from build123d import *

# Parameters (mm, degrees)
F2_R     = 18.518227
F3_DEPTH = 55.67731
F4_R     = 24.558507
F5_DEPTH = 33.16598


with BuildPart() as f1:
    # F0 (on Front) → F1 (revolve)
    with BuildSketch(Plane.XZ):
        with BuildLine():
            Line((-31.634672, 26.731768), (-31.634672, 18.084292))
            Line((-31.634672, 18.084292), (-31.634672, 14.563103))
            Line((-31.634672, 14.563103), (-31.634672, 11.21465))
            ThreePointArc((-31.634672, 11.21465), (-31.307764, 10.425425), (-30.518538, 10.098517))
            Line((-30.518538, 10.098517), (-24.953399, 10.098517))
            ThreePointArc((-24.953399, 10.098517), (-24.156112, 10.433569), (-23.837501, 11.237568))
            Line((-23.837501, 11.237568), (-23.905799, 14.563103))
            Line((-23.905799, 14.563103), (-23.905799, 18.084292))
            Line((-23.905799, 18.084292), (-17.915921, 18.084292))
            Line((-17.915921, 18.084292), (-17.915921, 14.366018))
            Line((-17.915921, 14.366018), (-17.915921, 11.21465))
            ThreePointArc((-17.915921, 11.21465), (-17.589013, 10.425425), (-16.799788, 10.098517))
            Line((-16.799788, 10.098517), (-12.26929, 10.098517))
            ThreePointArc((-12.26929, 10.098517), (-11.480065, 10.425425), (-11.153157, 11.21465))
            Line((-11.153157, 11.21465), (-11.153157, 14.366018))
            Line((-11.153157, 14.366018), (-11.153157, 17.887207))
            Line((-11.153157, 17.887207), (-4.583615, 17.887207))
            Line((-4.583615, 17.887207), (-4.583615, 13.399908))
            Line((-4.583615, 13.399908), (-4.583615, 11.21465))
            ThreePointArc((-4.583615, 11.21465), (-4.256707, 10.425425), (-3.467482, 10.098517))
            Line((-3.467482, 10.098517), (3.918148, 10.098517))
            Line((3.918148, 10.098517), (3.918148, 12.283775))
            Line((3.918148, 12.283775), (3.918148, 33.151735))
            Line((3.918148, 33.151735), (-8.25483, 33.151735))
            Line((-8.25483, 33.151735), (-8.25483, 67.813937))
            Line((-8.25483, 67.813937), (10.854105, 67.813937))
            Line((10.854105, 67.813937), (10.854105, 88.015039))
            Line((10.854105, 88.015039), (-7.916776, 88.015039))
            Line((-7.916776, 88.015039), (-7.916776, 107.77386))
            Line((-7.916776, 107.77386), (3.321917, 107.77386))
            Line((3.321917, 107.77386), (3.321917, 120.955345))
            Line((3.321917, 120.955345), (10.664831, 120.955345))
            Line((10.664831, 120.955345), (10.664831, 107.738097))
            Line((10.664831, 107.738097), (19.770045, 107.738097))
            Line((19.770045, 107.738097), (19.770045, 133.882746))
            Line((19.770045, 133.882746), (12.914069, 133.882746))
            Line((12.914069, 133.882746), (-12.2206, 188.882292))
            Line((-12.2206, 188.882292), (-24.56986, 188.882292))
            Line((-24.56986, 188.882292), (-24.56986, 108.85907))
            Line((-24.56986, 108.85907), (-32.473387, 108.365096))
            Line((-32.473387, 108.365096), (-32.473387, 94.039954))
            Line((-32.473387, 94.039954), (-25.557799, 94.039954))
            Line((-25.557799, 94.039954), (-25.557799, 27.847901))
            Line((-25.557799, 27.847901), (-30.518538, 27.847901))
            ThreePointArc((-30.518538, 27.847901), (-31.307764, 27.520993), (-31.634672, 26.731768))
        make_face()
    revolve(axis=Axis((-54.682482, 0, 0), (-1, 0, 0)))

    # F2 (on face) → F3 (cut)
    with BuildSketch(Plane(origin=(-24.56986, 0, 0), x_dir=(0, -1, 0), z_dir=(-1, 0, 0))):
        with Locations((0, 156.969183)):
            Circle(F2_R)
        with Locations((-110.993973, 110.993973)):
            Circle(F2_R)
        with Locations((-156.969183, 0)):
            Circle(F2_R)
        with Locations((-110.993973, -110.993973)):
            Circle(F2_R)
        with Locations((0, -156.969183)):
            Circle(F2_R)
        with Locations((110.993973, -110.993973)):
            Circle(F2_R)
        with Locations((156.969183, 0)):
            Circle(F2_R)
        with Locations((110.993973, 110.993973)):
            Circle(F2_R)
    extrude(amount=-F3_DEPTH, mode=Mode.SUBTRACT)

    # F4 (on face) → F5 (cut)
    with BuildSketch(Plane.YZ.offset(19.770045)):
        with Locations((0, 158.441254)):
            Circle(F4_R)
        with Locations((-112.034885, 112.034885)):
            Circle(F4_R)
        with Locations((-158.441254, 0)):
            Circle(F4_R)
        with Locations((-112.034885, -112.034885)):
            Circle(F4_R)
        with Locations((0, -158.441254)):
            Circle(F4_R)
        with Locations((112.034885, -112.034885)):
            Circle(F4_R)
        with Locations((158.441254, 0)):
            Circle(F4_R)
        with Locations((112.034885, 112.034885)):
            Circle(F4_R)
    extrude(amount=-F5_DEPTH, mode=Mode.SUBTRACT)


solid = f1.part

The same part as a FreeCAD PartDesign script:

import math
import FreeCAD as App
import Part
import Sketcher
from FreeCAD import Vector
Q = App.Units.Quantity

doc = App.newDocument("Part")
body = doc.addObject("PartDesign::Body", "Body")

# Sketch on XZ plane
sketch1 = doc.addObject("Sketcher::SketchObject", "Sketch")
body.addObject(sketch1)
sketch1.AttachmentSupport = (doc.XZ_Plane, [""])
sketch1.MapMode = "FlatFace"
sketch1.addGeometry([
    Part.LineSegment(Vector(-31.634672, 26.731768, 0), Vector(-31.634672, 11.21465, 0)),  # 0
    Part.ArcOfCircle(Part.Circle(Vector(-30.518538, 11.214651, 0), Vector(0, 0, 1), 1.116134), math.radians(-179.999963), math.radians(-89.999986)),  # 1
    Part.LineSegment(Vector(-30.518538, 10.098517, 0), Vector(-24.953399, 10.098517, 0)),  # 2
    Part.ArcOfCircle(Part.Circle(Vector(-24.953398, 11.214649, 0), Vector(0, 0, 1), 1.116132), math.radians(-90.000055), math.radians(1.176598)),  # 3
    Part.LineSegment(Vector(-23.837501, 11.237568, 0), Vector(-23.905799, 14.563103, 0)),  # 4
    Part.LineSegment(Vector(-23.905799, 14.563103, 0), Vector(-23.905799, 18.084292, 0)),  # 5
    Part.LineSegment(Vector(-23.905799, 18.084292, 0), Vector(-17.915921, 18.084292, 0)),  # 6
    Part.LineSegment(Vector(-17.915921, 18.084292, 0), Vector(-17.915921, 11.21465, 0)),  # 7
    Part.ArcOfCircle(Part.Circle(Vector(-16.799787, 11.214651, 0), Vector(0, 0, 1), 1.116134), math.radians(-179.999963), math.radians(-90.000037)),  # 8
    Part.LineSegment(Vector(-16.799788, 10.098517, 0), Vector(-12.26929, 10.098517, 0)),  # 9
    Part.ArcOfCircle(Part.Circle(Vector(-12.269291, 11.214651, 0), Vector(0, 0, 1), 1.116134), math.radians(-89.999963), math.radians(-0.000037)),  # 10
    Part.LineSegment(Vector(-11.153157, 11.21465, 0), Vector(-11.153157, 17.887207, 0)),  # 11
    Part.LineSegment(Vector(-11.153157, 17.887207, 0), Vector(-4.583615, 17.887207, 0)),  # 12
    Part.LineSegment(Vector(-4.583615, 17.887207, 0), Vector(-4.583615, 11.21465, 0)),  # 13
    Part.ArcOfCircle(Part.Circle(Vector(-3.467481, 11.214651, 0), Vector(0, 0, 1), 1.116134), math.radians(-179.999963), math.radians(-90.000037)),  # 14
    Part.LineSegment(Vector(-3.467482, 10.098517, 0), Vector(3.918148, 10.098517, 0)),  # 15
    Part.LineSegment(Vector(3.918148, 10.098517, 0), Vector(3.918148, 33.151735, 0)),  # 16
    Part.LineSegment(Vector(3.918148, 33.151735, 0), Vector(-8.25483, 33.151735, 0)),  # 17
    Part.LineSegment(Vector(-8.25483, 33.151735, 0), Vector(-8.25483, 67.813937, 0)),  # 18
    Part.LineSegment(Vector(-8.25483, 67.813937, 0), Vector(10.854105, 67.813937, 0)),  # 19
    Part.LineSegment(Vector(10.854105, 67.813937, 0), Vector(10.854105, 88.015039, 0)),  # 20
    Part.LineSegment(Vector(10.854105, 88.015039, 0), Vector(-7.916776, 88.015039, 0)),  # 21
    Part.LineSegment(Vector(-7.916776, 88.015039, 0), Vector(-7.916776, 107.77386, 0)),  # 22
    Part.LineSegment(Vector(-7.916776, 107.77386, 0), Vector(3.321917, 107.77386, 0)),  # 23
    Part.LineSegment(Vector(3.321917, 107.77386, 0), Vector(3.321917, 120.955345, 0)),  # 24
    Part.LineSegment(Vector(3.321917, 120.955345, 0), Vector(10.664831, 120.955345, 0)),  # 25
    Part.LineSegment(Vector(10.664831, 120.955345, 0), Vector(10.664831, 107.738097, 0)),  # 26
    Part.LineSegment(Vector(10.664831, 107.738097, 0), Vector(19.770045, 107.738097, 0)),  # 27
    Part.LineSegment(Vector(19.770045, 107.738097, 0), Vector(19.770045, 133.882746, 0)),  # 28
    Part.LineSegment(Vector(19.770045, 133.882746, 0), Vector(12.914069, 133.882746, 0)),  # 29
    Part.LineSegment(Vector(12.914069, 133.882746, 0), Vector(-12.2206, 188.882292, 0)),  # 30
    Part.LineSegment(Vector(-12.2206, 188.882292, 0), Vector(-24.56986, 188.882292, 0)),  # 31
    Part.LineSegment(Vector(-24.56986, 188.882292, 0), Vector(-24.56986, 108.85907, 0)),  # 32
    Part.LineSegment(Vector(-24.56986, 108.85907, 0), Vector(-32.473387, 108.365096, 0)),  # 33
    Part.LineSegment(Vector(-32.473387, 108.365096, 0), Vector(-32.473387, 94.039954, 0)),  # 34
    Part.LineSegment(Vector(-32.473387, 94.039954, 0), Vector(-25.557799, 94.039954, 0)),  # 35
    Part.LineSegment(Vector(-25.557799, 94.039954, 0), Vector(-25.557799, 27.847901, 0)),  # 36
    Part.LineSegment(Vector(-25.557799, 27.847901, 0), Vector(-30.518538, 27.847901, 0)),  # 37
    Part.ArcOfCircle(Part.Circle(Vector(-30.518538, 26.731767, 0), Vector(0, 0, 1), 1.116134), math.radians(89.999986), math.radians(179.999963)),  # 38
], False)
sketch1.addConstraint([
    Sketcher.Constraint("Tangent", 0, 2, 1, 1),
    Sketcher.Constraint("Tangent", 1, 2, 2, 1),
    Sketcher.Constraint("Tangent", 2, 2, 3, 1),
    Sketcher.Constraint("Tangent", 3, 2, 4, 1),
    Sketcher.Constraint("Coincident", 4, 2, 5, 1),
    Sketcher.Constraint("Coincident", 5, 2, 6, 1),
    Sketcher.Constraint("Coincident", 6, 2, 7, 1),
    Sketcher.Constraint("Tangent", 7, 2, 8, 1),
    Sketcher.Constraint("Tangent", 8, 2, 9, 1),
    Sketcher.Constraint("Tangent", 9, 2, 10, 1),
    Sketcher.Constraint("Tangent", 10, 2, 11, 1),
    Sketcher.Constraint("Coincident", 11, 2, 12, 1),
    Sketcher.Constraint("Coincident", 12, 2, 13, 1),
    Sketcher.Constraint("Tangent", 13, 2, 14, 1),
    Sketcher.Constraint("Tangent", 14, 2, 15, 1),
    Sketcher.Constraint("Coincident", 15, 2, 16, 1),
    Sketcher.Constraint("Coincident", 16, 2, 17, 1),
    Sketcher.Constraint("Coincident", 17, 2, 18, 1),
    Sketcher.Constraint("Coincident", 18, 2, 19, 1),
    Sketcher.Constraint("Coincident", 19, 2, 20, 1),
    Sketcher.Constraint("Coincident", 20, 2, 21, 1),
    Sketcher.Constraint("Coincident", 21, 2, 22, 1),
    Sketcher.Constraint("Coincident", 22, 2, 23, 1),
    Sketcher.Constraint("Coincident", 23, 2, 24, 1),
    Sketcher.Constraint("Coincident", 24, 2, 25, 1),
    Sketcher.Constraint("Coincident", 25, 2, 26, 1),
    Sketcher.Constraint("Coincident", 26, 2, 27, 1),
    Sketcher.Constraint("Coincident", 27, 2, 28, 1),
    Sketcher.Constraint("Coincident", 28, 2, 29, 1),
    Sketcher.Constraint("Coincident", 29, 2, 30, 1),
    Sketcher.Constraint("Coincident", 30, 2, 31, 1),
    Sketcher.Constraint("Coincident", 31, 2, 32, 1),
    Sketcher.Constraint("Coincident", 32, 2, 33, 1),
    Sketcher.Constraint("Coincident", 33, 2, 34, 1),
    Sketcher.Constraint("Coincident", 34, 2, 35, 1),
    Sketcher.Constraint("Coincident", 35, 2, 36, 1),
    Sketcher.Constraint("Coincident", 36, 2, 37, 1),
    Sketcher.Constraint("Tangent", 37, 2, 38, 1),
    Sketcher.Constraint("Tangent", 38, 2, 0, 1),
    Sketcher.Constraint("Vertical", 0),
    Sketcher.Constraint("Horizontal", 2),
    Sketcher.Constraint("Vertical", 5),
    Sketcher.Constraint("Horizontal", 6),
    Sketcher.Constraint("Vertical", 7),
    Sketcher.Constraint("Horizontal", 9),
    Sketcher.Constraint("Vertical", 11),
    Sketcher.Constraint("Horizontal", 12),
    Sketcher.Constraint("Vertical", 13),
    Sketcher.Constraint("Horizontal", 15),
    Sketcher.Constraint("Vertical", 16),
    Sketcher.Constraint("Horizontal", 17),
    Sketcher.Constraint("Vertical", 18),
    Sketcher.Constraint("Horizontal", 19),
    Sketcher.Constraint("Vertical", 20),
    Sketcher.Constraint("Horizontal", 21),
    Sketcher.Constraint("Vertical", 22),
    Sketcher.Constraint("Horizontal", 23),
    Sketcher.Constraint("Vertical", 24),
    Sketcher.Constraint("Horizontal", 25),
    Sketcher.Constraint("Vertical", 26),
    Sketcher.Constraint("Horizontal", 27),
    Sketcher.Constraint("Vertical", 28),
    Sketcher.Constraint("Horizontal", 29),
    Sketcher.Constraint("Horizontal", 31),
    Sketcher.Constraint("Vertical", 32),
    Sketcher.Constraint("Vertical", 34),
    Sketcher.Constraint("Horizontal", 35),
    Sketcher.Constraint("Vertical", 36),
    Sketcher.Constraint("Horizontal", 37),
    Sketcher.Constraint("Equal", 1, 3),
    Sketcher.Constraint("Equal", 3, 8),
    Sketcher.Constraint("Equal", 8, 10),
    Sketcher.Constraint("Equal", 10, 14),
    Sketcher.Constraint("Equal", 14, 38),
    Sketcher.Constraint("Horizontal", 3, 3, 8, 3),
    Sketcher.Constraint("Horizontal", 10, 3, 14, 3),
    Sketcher.Constraint("DistanceY", 18, 1, 18, 2, Q("34.662202 mm")),
    Sketcher.Constraint("Radius", 1, Q("1.116134 mm")),
    Sketcher.Constraint("DistanceX", 36, 2, 5, 2, Q("1.652 mm")),
    Sketcher.Constraint("DistanceX", 2, 1, 2, 2, Q("5.565139 mm")),
    Sketcher.Constraint("DistanceX", 15, 1, 15, 2, Q("7.38563 mm")),
    Sketcher.Constraint("DistanceX", 21, 2, 21, 1, Q("18.770881 mm")),
    Sketcher.Constraint("DistanceX", 31, 2, 31, 1, Q("12.34926 mm")),
    Sketcher.Constraint("DistanceX", 35, 1, 35, 2, Q("6.915588 mm")),
    Sketcher.Constraint("DistanceX", 37, 2, 37, 1, Q("4.960739 mm")),
    Sketcher.Constraint("DistanceY", 5, 1, 5, 2, Q("3.521189 mm")),
    Sketcher.Constraint("DistanceY", 16, 1, 16, 2, Q("23.053218 mm")),
    Sketcher.Constraint("DistanceY", 22, 1, 22, 2, Q("19.758821 mm")),
    Sketcher.Constraint("DistanceY", 28, 1, 28, 2, Q("26.144649 mm")),
    Sketcher.Constraint("DistanceX", 2, 2, -1, 1, Q("24.953399 mm")),
    Sketcher.Constraint("DistanceX", 30, 2, -1, 1, Q("12.2206 mm")),
    Sketcher.Constraint("DistanceY", -1, 1, 36, 2, Q("27.847901 mm")),
    Sketcher.Constraint("DistanceY", 25, 2, 28, 2, Q("12.927401 mm")),
    Sketcher.Constraint("Distance", 33, Q("7.918949 mm")),
    Sketcher.Constraint("DistanceX", 6, 1, 6, 2, Q("5.989878 mm")),
    Sketcher.Constraint("DistanceX", 9, 1, 9, 2, Q("4.530498 mm")),
    Sketcher.Constraint("DistanceX", 12, 1, 12, 2, Q("6.569542 mm")),
    Sketcher.Constraint("DistanceX", 17, 2, 17, 1, Q("12.172978 mm")),
    Sketcher.Constraint("DistanceX", 19, 1, 19, 2, Q("19.108935 mm")),
    Sketcher.Constraint("DistanceX", 23, 1, 23, 2, Q("11.238693 mm")),
    Sketcher.Constraint("DistanceX", 25, 1, 25, 2, Q("7.342914 mm")),
    Sketcher.Constraint("DistanceX", 27, 1, 27, 2, Q("9.105214 mm")),
    Sketcher.Constraint("DistanceX", 29, 2, 29, 1, Q("6.855976 mm")),
    Sketcher.Constraint("DistanceY", 0, 2, 0, 1, Q("15.517118 mm")),
    Sketcher.Constraint("DistanceY", 7, 2, 7, 1, Q("6.869642 mm")),
    Sketcher.Constraint("DistanceY", 11, 1, 11, 2, Q("6.672557 mm")),
    Sketcher.Constraint("DistanceY", 20, 1, 20, 2, Q("20.201102 mm")),
    Sketcher.Constraint("DistanceY", 24, 1, 24, 2, Q("13.181485 mm")),
    Sketcher.Constraint("DistanceY", 32, 2, 32, 1, Q("80.023222 mm")),
    Sketcher.Constraint("DistanceY", 34, 2, 34, 1, Q("14.325142 mm")),
    Sketcher.Constraint("DistanceY", 36, 2, 36, 1, Q("66.192053 mm")),
])
revolution = doc.addObject("PartDesign::Revolution", "Revolution")
body.addObject(revolution)
revolution.Profile = sketch1
revolution.ReferenceAxis = (sketch1, ["H_Axis"])
revolution.Angle = 360

# Sketch on YZ plane
sketch2 = doc.addObject("Sketcher::SketchObject", "Sketch001")
body.addObject(sketch2)
sketch2.AttachmentSupport = (doc.YZ_Plane, [""])
sketch2.MapMode = "FlatFace"
sketch2.AttachmentOffset = App.Placement(Vector(0, 0, -24.56986), App.Rotation())
sketch2.addGeometry([
    Part.Circle(Vector(0, 156.969183, 0), Vector(0, 0, 1), 18.518227),  # 0
    Part.Circle(Vector(110.993973, 110.993973, 0), Vector(0, 0, 1), 18.518227),  # 1
    Part.Circle(Vector(156.969183, 0, 0), Vector(0, 0, 1), 18.518227),  # 2
    Part.Circle(Vector(110.993973, -110.993973, 0), Vector(0, 0, 1), 18.518227),  # 3
    Part.Circle(Vector(0, -156.969183, 0), Vector(0, 0, 1), 18.518227),  # 4
    Part.Circle(Vector(-110.993973, -110.993973, 0), Vector(0, 0, 1), 18.518227),  # 5
    Part.Circle(Vector(-156.969183, 0, 0), Vector(0, 0, 1), 18.518227),  # 6
    Part.Circle(Vector(-110.993973, 110.993973, 0), Vector(0, 0, 1), 18.518227),  # 7
], False)
sketch2.addConstraint([
    Sketcher.Constraint("Equal", 0, 1),
    Sketcher.Constraint("Equal", 1, 2),
    Sketcher.Constraint("Equal", 2, 3),
    Sketcher.Constraint("Equal", 3, 4),
    Sketcher.Constraint("Equal", 4, 5),
    Sketcher.Constraint("Equal", 5, 6),
    Sketcher.Constraint("Equal", 6, 7),
    Sketcher.Constraint("Symmetric", 0, 3, 4, 3, -1, 1),
    Sketcher.Constraint("Symmetric", 1, 3, 5, 3, -1, 1),
    Sketcher.Constraint("Symmetric", 2, 3, 6, 3, -1, 1),
    Sketcher.Constraint("Symmetric", 3, 3, 7, 3, -1, 1),
    Sketcher.Constraint("Symmetric", 3, 3, 5, 3, -2),
    Sketcher.Constraint("PointOnObject", 0, 3, -2),
    Sketcher.Constraint("PointOnObject", 2, 3, -1),
    Sketcher.Constraint("Diameter", 0, Q("37.036454 mm")),
    Sketcher.Constraint("DistanceY", 1, 3, 0, 3, Q("45.97521 mm")),
    Sketcher.Constraint("DistanceX", 1, 3, 2, 3, Q("45.97521 mm")),
    Sketcher.Constraint("DistanceY", -1, 1, 0, 3, Q("156.969183 mm")),
    Sketcher.Constraint("DistanceX", -1, 1, 1, 3, Q("110.993973 mm")),
])
pocket1 = doc.addObject("PartDesign::Pocket", "Pocket")
body.addObject(pocket1)
pocket1.Profile = sketch2
pocket1.Length = 55.67731
pocket1.Reversed = True

# Sketch on YZ plane
sketch3 = doc.addObject("Sketcher::SketchObject", "Sketch002")
body.addObject(sketch3)
sketch3.AttachmentSupport = (doc.YZ_Plane, [""])
sketch3.MapMode = "FlatFace"
sketch3.AttachmentOffset = App.Placement(Vector(0, 0, 19.770045), App.Rotation())
sketch3.addGeometry([
    Part.Circle(Vector(0, 158.441254, 0), Vector(0, 0, 1), 24.558507),  # 0
    Part.Circle(Vector(-112.034885, 112.034885, 0), Vector(0, 0, 1), 24.558507),  # 1
    Part.Circle(Vector(-158.441254, 0, 0), Vector(0, 0, 1), 24.558507),  # 2
    Part.Circle(Vector(-112.034885, -112.034885, 0), Vector(0, 0, 1), 24.558507),  # 3
    Part.Circle(Vector(0, -158.441254, 0), Vector(0, 0, 1), 24.558507),  # 4
    Part.Circle(Vector(112.034885, -112.034885, 0), Vector(0, 0, 1), 24.558507),  # 5
    Part.Circle(Vector(158.441254, 0, 0), Vector(0, 0, 1), 24.558507),  # 6
    Part.Circle(Vector(112.034885, 112.034885, 0), Vector(0, 0, 1), 24.558507),  # 7
], False)
sketch3.addConstraint([
    Sketcher.Constraint("Equal", 0, 1),
    Sketcher.Constraint("Equal", 1, 2),
    Sketcher.Constraint("Equal", 2, 3),
    Sketcher.Constraint("Equal", 3, 4),
    Sketcher.Constraint("Equal", 4, 5),
    Sketcher.Constraint("Equal", 5, 6),
    Sketcher.Constraint("Equal", 6, 7),
    Sketcher.Constraint("Symmetric", 0, 3, 4, 3, -1, 1),
    Sketcher.Constraint("Symmetric", 1, 3, 5, 3, -1, 1),
    Sketcher.Constraint("Symmetric", 2, 3, 6, 3, -1, 1),
    Sketcher.Constraint("Symmetric", 3, 3, 7, 3, -1, 1),
    Sketcher.Constraint("Symmetric", 3, 3, 5, 3, -2),
    Sketcher.Constraint("PointOnObject", 0, 3, -2),
    Sketcher.Constraint("PointOnObject", 2, 3, -1),
    Sketcher.Constraint("Diameter", 0, Q("49.117014 mm")),
    Sketcher.Constraint("DistanceY", 1, 3, 0, 3, Q("46.406369 mm")),
    Sketcher.Constraint("DistanceX", 2, 3, 1, 3, Q("46.406369 mm")),
    Sketcher.Constraint("DistanceY", 3, 3, 1, 3, Q("224.06977 mm")),
    Sketcher.Constraint("DistanceX", 3, 3, 5, 3, Q("224.06977 mm")),
])
pocket2 = doc.addObject("PartDesign::Pocket", "Pocket001")
body.addObject(pocket2)
pocket2.Profile = sketch3
pocket2.Length = 33.16598

doc.recompute()
